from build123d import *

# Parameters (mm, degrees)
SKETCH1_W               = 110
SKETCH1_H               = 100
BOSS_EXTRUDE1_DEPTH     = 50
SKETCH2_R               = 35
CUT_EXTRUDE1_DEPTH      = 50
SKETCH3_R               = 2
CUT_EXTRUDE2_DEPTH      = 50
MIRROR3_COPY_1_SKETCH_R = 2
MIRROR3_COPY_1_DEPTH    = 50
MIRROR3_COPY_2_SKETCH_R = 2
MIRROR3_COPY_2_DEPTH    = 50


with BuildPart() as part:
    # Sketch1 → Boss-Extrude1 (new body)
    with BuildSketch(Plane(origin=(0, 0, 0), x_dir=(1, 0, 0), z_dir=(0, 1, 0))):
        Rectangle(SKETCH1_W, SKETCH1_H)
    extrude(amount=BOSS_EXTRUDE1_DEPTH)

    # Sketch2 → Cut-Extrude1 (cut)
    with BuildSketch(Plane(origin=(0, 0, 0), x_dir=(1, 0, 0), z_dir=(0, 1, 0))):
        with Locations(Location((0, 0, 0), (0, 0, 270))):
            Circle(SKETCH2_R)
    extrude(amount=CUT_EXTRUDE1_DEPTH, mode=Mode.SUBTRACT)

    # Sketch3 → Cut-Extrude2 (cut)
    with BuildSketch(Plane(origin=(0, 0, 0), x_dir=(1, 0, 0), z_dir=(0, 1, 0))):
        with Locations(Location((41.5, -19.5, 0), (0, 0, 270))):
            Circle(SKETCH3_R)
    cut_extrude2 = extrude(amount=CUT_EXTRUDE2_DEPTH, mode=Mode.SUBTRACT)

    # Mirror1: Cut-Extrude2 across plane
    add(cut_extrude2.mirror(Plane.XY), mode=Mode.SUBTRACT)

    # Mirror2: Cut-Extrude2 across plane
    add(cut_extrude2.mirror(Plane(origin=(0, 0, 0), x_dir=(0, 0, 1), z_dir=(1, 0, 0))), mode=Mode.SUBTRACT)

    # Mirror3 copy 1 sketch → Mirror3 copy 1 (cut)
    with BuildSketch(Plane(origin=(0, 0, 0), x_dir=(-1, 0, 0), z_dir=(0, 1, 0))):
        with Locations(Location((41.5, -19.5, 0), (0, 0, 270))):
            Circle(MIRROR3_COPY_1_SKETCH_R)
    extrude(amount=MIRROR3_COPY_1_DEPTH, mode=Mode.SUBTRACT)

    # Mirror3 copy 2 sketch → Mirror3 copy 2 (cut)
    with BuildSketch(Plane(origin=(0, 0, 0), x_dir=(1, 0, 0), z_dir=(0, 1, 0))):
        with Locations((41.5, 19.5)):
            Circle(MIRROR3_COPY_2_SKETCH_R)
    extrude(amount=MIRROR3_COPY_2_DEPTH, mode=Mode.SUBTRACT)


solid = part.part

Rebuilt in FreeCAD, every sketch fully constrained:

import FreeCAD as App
import Part
import Sketcher
Q = App.Units.Quantity

doc = App.newDocument("Part")
body = doc.addObject("PartDesign::Body", "Body")

# Sketch on XZ plane
sketch1 = body.newObject("Sketcher::SketchObject", "Sketch")
sketch1.AttachmentSupport = (doc.getObject("XZ_Plane"), [""])
sketch1.MapMode = "FlatFace"
sketch1.addGeometry(Part.LineSegment(App.Vector(-55, -50, 0), App.Vector(-55, 50, 0)), False)
sketch1.addGeometry(Part.LineSegment(App.Vector(-55, 50, 0), App.Vector(55, 50, 0)), False)
sketch1.addGeometry(Part.LineSegment(App.Vector(55, 50, 0), App.Vector(55, -50, 0)), False)
sketch1.addGeometry(Part.LineSegment(App.Vector(55, -50, 0), App.Vector(-55, -50, 0)), False)
sketch1.addConstraint(Sketcher.Constraint("Coincident", 0, 2, 1, 1))
sketch1.addConstraint(Sketcher.Constraint("Coincident", 1, 2, 2, 1))
sketch1.addConstraint(Sketcher.Constraint("Coincident", 2, 2, 3, 1))
sketch1.addConstraint(Sketcher.Constraint("Coincident", 3, 2, 0, 1))
sketch1.addConstraint(Sketcher.Constraint("Vertical", 0))
sketch1.addConstraint(Sketcher.Constraint("Horizontal", 1))
sketch1.addConstraint(Sketcher.Constraint("Vertical", 2))
sketch1.addConstraint(Sketcher.Constraint("Horizontal", 3))
sketch1.addConstraint(Sketcher.Constraint("Symmetric", 0, 2, 2, 2, -1, 1))
sketch1.addConstraint(Sketcher.Constraint("DistanceX", 1, 1, 1, 2, Q("110 mm")))
sketch1.addConstraint(Sketcher.Constraint("DistanceY", 0, 1, 0, 2, Q("100 mm")))
pad1 = body.newObject("PartDesign::Pad", "Pad")
pad1.Profile = sketch1
pad1.Length = 50
pad1.Reversed = True

# Sketch on XZ plane
sketch2 = body.newObject("Sketcher::SketchObject", "Sketch001")
sketch2.AttachmentSupport = (doc.getObject("XZ_Plane"), [""])
sketch2.MapMode = "FlatFace"
sketch2.addGeometry(Part.Circle(App.Vector(0, 0, 0), App.Vector(0, 0, 1), 35), False)
sketch2.addConstraint(Sketcher.Constraint("Coincident", 0, 3, -1, 1))
sketch2.addConstraint(Sketcher.Constraint("Diameter", 0, Q("70 mm")))
pocket1 = body.newObject("PartDesign::Pocket", "Pocket")
pocket1.Profile = sketch2
pocket1.Length = 50

# Sketch on XZ plane
sketch3 = body.newObject("Sketcher::SketchObject", "Sketch002")
sketch3.AttachmentSupport = (doc.getObject("XZ_Plane"), [""])
sketch3.MapMode = "FlatFace"
sketch3.addGeometry(Part.Circle(App.Vector(41.5, 19.5, 0), App.Vector(0, 0, 1), 2), False)
sketch3.addConstraint(Sketcher.Constraint("Diameter", 0, Q("4 mm")))
sketch3.addConstraint(Sketcher.Constraint("DistanceX", -1, 1, 0, 3, Q("41.5 mm")))
sketch3.addConstraint(Sketcher.Constraint("DistanceY", -1, 1, 0, 3, Q("19.5 mm")))
pocket2 = body.newObject("PartDesign::Pocket", "Pocket001")
pocket2.Profile = sketch3
pocket2.Length = 50
doc.recompute()

mirrored = body.newObject("PartDesign::Mirrored", "Mirrored")
mirrored.Originals = [pocket2]
mirrored.MirrorPlane = (doc.getObject("XY_Plane"), [""])
body.Tip = mirrored
doc.recompute()

mirrored2 = body.newObject("PartDesign::Mirrored", "Mirrored001")
mirrored2.Originals = [pocket2]
mirrored2.MirrorPlane = (doc.getObject("YZ_Plane"), [""])
body.Tip = mirrored2

# Sketch on XZ plane
sketch4 = body.newObject("Sketcher::SketchObject", "Sketch003")
sketch4.AttachmentSupport = (doc.getObject("XZ_Plane"), [""])
sketch4.MapMode = "FlatFace"
sketch4.addGeometry(Part.Circle(App.Vector(-41.5, -19.5, 0), App.Vector(0, 0, 1), 2), False)
sketch4.addConstraint(Sketcher.Constraint("Diameter", 0, Q("4 mm")))
sketch4.addConstraint(Sketcher.Constraint("DistanceX", 0, 3, -1, 1, Q("41.5 mm")))
sketch4.addConstraint(Sketcher.Constraint("DistanceY", 0, 3, -1, 1, Q("19.5 mm")))
pocket3 = body.newObject("PartDesign::Pocket", "Pocket002")
pocket3.Profile = sketch4
pocket3.Length = 50

# Sketch on XZ plane
sketch5 = body.newObject("Sketcher::SketchObject", "Sketch004")
sketch5.AttachmentSupport = (doc.getObject("XZ_Plane"), [""])
sketch5.MapMode = "FlatFace"
sketch5.addGeometry(Part.Circle(App.Vector(41.5, -19.5, 0), App.Vector(0, 0, 1), 2), False)
sketch5.addConstraint(Sketcher.Constraint("Diameter", 0, Q("4 mm")))
sketch5.addConstraint(Sketcher.Constraint("DistanceX", -1, 1, 0, 3, Q("41.5 mm")))
sketch5.addConstraint(Sketcher.Constraint("DistanceY", 0, 3, -1, 1, Q("19.5 mm")))
pocket4 = body.newObject("PartDesign::Pocket", "Pocket003")
pocket4.Profile = sketch5
pocket4.Length = 50

doc.recompute()
